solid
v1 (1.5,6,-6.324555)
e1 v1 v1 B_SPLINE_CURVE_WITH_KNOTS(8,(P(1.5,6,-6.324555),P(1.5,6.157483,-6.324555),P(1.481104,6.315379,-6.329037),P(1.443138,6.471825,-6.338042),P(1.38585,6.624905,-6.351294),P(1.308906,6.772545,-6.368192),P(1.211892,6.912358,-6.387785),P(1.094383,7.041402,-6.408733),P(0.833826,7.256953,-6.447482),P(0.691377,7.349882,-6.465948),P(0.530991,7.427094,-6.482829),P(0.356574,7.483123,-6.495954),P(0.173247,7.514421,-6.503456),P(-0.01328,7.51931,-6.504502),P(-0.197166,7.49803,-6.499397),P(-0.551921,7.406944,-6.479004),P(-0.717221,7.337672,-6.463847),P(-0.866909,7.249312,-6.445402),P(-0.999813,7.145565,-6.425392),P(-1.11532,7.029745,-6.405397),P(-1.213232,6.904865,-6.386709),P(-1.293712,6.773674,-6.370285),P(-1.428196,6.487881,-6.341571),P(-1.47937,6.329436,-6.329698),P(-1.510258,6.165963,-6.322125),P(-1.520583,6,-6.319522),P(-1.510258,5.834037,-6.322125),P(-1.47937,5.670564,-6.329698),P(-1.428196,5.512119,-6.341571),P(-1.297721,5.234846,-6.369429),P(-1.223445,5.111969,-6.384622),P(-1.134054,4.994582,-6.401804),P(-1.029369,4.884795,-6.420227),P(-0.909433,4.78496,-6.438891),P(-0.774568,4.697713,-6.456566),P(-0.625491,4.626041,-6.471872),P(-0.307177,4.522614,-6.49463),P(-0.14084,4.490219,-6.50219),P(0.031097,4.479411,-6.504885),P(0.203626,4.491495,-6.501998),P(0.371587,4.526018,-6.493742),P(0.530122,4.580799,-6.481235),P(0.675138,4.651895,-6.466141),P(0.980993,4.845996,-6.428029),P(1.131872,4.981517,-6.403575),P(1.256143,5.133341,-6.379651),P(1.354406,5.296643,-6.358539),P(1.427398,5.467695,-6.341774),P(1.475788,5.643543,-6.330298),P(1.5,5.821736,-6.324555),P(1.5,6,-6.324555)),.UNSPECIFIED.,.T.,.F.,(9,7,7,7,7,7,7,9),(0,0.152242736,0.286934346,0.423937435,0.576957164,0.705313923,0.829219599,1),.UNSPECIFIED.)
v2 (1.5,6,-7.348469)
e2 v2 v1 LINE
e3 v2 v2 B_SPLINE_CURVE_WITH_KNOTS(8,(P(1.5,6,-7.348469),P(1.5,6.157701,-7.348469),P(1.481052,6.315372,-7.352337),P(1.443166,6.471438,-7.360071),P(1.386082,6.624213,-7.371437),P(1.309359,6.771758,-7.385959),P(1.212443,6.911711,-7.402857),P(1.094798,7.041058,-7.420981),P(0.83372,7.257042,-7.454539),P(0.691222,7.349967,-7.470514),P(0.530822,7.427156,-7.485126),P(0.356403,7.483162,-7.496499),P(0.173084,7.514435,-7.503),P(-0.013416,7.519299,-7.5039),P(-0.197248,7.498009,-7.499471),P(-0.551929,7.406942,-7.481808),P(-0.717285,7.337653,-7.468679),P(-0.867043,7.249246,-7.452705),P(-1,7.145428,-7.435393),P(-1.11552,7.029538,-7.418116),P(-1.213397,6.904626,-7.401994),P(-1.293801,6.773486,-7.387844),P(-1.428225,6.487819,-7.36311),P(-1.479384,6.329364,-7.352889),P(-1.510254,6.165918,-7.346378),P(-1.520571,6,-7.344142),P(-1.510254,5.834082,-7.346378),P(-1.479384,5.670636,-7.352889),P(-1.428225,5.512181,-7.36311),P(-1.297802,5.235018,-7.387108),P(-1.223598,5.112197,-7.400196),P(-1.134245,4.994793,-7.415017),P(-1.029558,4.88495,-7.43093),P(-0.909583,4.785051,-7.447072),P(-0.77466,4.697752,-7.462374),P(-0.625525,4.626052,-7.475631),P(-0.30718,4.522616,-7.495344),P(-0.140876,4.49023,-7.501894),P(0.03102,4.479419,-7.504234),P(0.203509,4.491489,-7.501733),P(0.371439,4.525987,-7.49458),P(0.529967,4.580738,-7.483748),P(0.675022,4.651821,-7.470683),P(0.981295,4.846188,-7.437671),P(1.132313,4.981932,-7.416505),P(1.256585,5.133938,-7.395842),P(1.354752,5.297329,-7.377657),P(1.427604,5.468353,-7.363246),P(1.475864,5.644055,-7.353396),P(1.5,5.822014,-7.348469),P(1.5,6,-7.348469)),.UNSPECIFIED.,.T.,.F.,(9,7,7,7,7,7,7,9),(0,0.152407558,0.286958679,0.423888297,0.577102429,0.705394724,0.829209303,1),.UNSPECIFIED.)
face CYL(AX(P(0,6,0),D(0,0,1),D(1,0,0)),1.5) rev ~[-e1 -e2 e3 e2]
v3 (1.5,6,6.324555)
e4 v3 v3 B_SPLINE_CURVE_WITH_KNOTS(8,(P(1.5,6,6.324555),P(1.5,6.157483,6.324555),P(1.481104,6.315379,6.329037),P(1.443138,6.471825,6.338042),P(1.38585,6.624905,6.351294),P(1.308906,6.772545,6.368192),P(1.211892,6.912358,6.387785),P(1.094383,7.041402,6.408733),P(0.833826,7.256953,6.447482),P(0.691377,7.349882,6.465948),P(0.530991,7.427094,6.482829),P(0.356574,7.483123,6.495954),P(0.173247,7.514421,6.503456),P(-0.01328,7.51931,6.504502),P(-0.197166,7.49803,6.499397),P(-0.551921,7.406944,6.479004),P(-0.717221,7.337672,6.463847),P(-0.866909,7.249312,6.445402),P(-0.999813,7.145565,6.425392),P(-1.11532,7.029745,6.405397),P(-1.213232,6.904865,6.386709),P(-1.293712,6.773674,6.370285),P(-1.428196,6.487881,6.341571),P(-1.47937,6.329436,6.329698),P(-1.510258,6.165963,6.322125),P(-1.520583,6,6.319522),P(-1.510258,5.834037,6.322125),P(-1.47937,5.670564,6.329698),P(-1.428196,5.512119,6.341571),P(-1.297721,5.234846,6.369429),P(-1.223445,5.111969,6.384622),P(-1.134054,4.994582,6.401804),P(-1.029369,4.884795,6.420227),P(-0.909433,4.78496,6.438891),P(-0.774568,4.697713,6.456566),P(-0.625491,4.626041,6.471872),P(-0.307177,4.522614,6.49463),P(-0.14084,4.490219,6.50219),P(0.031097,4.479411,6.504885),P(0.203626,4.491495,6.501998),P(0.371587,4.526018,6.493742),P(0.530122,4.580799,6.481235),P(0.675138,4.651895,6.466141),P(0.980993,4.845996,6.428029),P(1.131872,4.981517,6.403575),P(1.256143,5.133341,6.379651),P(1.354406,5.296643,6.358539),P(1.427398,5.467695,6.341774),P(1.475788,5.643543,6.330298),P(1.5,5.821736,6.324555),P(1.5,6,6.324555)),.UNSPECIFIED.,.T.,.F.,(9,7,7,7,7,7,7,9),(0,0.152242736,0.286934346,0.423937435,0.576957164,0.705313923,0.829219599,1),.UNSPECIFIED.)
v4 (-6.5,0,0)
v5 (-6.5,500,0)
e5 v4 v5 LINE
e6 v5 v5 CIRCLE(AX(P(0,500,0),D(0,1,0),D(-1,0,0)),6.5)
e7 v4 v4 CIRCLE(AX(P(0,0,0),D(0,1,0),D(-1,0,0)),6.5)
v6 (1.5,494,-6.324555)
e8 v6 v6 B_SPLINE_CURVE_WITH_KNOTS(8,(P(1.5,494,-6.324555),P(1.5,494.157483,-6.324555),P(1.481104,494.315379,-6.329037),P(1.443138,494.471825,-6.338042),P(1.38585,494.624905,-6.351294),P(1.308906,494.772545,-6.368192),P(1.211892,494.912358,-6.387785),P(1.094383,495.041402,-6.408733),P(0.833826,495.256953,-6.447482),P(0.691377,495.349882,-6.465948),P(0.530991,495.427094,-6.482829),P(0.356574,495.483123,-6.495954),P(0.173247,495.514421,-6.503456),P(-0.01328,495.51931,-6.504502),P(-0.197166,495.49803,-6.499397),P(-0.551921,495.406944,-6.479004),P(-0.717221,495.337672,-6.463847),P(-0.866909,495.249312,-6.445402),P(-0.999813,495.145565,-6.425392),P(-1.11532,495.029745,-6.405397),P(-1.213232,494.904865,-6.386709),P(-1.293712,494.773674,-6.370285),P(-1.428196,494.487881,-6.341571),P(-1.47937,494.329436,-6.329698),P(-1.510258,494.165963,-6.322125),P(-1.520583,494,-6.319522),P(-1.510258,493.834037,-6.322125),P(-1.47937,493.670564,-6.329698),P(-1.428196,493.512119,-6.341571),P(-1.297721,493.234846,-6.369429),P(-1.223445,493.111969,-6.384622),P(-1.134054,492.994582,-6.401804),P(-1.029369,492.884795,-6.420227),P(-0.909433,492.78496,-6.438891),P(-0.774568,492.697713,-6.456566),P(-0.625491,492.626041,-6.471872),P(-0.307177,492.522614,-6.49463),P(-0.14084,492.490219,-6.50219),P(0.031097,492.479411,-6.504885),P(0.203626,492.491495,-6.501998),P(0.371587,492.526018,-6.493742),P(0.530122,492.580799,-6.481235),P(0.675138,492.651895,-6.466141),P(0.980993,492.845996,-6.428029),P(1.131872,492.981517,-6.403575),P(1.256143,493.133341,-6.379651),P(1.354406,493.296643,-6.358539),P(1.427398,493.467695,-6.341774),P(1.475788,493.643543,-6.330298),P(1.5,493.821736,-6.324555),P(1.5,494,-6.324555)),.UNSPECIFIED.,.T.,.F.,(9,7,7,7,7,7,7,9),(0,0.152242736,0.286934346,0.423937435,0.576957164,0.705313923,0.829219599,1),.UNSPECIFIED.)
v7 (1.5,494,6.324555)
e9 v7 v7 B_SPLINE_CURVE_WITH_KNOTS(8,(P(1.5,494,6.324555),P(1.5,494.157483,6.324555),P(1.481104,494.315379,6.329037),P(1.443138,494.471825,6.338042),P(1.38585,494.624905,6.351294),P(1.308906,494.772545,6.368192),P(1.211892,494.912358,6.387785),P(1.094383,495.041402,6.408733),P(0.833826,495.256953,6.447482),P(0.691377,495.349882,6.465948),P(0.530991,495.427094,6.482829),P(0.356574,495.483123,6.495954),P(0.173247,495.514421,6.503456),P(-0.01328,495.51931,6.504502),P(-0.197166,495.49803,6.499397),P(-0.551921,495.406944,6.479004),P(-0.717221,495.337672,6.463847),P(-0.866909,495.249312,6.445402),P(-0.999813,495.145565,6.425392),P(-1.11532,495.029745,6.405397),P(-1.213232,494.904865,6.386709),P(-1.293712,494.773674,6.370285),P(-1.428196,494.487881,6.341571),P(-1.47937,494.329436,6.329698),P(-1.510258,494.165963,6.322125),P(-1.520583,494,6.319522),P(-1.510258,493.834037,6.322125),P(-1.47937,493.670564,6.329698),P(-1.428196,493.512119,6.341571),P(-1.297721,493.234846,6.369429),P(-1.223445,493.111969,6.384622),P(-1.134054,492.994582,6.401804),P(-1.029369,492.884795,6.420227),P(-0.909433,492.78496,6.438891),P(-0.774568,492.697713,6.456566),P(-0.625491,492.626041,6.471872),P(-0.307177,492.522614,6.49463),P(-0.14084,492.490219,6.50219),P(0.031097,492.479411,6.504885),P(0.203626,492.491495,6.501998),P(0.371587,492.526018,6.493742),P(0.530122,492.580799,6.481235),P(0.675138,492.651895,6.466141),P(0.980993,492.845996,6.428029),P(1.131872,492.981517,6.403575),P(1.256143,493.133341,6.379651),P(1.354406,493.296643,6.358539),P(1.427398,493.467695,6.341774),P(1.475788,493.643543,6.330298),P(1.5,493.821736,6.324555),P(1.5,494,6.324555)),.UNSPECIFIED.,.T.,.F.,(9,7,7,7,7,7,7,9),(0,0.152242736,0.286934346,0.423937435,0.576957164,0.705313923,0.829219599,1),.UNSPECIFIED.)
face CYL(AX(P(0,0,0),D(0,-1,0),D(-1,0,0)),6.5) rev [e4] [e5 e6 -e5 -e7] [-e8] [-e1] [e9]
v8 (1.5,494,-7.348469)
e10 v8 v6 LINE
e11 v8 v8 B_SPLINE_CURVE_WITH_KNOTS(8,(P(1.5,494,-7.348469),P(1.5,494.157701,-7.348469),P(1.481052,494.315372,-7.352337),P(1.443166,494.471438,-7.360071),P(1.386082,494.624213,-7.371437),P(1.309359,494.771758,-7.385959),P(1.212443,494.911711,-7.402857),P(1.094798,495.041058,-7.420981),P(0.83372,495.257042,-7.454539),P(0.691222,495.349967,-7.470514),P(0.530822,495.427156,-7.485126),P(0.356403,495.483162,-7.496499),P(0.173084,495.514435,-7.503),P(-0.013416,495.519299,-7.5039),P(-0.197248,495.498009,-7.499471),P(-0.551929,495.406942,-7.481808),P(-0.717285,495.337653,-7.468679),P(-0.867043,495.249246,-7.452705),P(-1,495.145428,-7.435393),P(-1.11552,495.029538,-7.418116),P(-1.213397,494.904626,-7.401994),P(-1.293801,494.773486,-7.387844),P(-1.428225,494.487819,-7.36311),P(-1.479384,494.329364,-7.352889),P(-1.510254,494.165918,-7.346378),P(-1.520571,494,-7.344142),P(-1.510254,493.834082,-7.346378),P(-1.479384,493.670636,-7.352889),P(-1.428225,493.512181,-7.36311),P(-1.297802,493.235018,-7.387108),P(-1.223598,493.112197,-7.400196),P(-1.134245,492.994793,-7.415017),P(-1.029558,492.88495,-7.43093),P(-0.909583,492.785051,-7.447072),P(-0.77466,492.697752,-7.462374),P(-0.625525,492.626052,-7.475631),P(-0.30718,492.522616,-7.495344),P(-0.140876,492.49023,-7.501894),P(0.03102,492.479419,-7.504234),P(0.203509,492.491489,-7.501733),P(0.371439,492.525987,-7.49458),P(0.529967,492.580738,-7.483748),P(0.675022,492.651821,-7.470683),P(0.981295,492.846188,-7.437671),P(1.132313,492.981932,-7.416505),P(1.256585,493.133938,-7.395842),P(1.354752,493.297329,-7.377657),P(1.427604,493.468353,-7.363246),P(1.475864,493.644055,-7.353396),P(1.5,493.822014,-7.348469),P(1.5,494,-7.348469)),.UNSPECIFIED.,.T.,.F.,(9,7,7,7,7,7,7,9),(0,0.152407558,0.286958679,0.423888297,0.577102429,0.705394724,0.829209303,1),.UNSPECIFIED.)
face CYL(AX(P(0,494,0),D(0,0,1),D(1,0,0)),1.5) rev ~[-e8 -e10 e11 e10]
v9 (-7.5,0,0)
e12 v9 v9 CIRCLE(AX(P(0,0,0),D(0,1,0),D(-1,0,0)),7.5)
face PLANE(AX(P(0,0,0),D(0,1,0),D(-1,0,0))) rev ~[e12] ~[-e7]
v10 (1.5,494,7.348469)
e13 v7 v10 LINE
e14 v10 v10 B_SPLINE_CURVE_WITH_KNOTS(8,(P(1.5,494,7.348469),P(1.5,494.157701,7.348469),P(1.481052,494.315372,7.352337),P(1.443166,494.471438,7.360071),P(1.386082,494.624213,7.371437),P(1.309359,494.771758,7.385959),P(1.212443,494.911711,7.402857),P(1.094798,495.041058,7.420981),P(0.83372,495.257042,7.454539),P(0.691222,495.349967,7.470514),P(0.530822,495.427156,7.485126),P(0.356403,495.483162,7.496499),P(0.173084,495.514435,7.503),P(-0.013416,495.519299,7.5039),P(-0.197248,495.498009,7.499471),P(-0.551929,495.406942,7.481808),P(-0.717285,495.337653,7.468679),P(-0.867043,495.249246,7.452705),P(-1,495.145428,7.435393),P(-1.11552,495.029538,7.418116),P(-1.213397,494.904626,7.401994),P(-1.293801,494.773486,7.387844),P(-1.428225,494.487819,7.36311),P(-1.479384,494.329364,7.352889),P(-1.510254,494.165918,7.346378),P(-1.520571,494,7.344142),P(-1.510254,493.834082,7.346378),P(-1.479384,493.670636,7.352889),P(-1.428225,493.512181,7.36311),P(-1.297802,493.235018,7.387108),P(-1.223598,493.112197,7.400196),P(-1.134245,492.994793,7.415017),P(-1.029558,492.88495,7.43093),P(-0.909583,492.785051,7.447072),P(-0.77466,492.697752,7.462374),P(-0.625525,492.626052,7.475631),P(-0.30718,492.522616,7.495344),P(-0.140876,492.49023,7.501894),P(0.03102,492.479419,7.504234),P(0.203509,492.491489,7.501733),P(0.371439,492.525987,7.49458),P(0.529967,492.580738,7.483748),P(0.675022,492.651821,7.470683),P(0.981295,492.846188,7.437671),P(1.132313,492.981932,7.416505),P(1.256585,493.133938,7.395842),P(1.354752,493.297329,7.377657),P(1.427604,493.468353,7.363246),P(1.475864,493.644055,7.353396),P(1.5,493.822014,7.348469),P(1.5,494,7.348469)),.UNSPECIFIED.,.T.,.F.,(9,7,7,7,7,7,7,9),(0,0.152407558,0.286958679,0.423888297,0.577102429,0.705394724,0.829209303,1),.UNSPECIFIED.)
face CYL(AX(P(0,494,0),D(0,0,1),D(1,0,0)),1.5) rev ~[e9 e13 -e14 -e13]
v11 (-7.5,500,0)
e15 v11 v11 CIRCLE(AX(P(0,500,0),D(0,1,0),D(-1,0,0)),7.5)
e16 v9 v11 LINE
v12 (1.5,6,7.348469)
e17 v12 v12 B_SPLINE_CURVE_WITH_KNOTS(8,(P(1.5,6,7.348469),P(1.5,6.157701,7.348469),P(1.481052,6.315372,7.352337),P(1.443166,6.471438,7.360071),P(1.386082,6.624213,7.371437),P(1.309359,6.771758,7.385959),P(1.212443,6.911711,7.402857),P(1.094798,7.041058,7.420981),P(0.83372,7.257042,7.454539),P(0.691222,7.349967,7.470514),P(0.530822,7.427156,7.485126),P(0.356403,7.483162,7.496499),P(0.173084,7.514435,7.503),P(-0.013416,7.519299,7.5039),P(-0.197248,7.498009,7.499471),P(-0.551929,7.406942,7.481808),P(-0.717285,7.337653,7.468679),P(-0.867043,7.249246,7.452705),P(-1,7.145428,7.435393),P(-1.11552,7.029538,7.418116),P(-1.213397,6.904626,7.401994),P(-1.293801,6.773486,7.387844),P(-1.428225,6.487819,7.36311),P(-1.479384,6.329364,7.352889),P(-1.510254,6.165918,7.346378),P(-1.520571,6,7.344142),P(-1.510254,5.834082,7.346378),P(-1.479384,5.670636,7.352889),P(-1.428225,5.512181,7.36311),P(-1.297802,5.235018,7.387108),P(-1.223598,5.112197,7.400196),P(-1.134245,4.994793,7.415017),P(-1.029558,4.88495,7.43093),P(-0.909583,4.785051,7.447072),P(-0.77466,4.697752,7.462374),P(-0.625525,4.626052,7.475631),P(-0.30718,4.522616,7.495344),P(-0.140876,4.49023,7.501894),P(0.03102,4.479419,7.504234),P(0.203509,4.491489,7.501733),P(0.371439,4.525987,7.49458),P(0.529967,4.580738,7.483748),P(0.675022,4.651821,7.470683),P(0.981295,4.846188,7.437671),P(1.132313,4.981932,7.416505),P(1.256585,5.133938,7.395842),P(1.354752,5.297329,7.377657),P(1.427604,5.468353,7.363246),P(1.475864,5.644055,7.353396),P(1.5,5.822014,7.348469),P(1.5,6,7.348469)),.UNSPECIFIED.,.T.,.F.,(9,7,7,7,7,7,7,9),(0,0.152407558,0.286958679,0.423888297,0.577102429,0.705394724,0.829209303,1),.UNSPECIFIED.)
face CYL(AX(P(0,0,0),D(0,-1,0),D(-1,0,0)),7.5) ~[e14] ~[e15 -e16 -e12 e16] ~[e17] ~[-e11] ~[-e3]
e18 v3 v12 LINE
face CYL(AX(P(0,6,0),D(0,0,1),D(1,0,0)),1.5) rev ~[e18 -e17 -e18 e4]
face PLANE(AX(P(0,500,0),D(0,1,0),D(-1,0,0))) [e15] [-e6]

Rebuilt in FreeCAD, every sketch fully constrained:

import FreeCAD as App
import Part
import Sketcher

V = App.Vector
Q = App.Units.Quantity

doc = App.newDocument("Part")
body = doc.addObject("PartDesign::Body", "Body")

sketch1 = body.newObject("Sketcher::SketchObject", "Sketch")
sketch1.AttachmentSupport = (doc.getObject("XZ_Plane"), [""])
sketch1.MapMode = "FlatFace"
sketch1.addGeometry(Part.Circle(V(0, 0, 0), V(0, 0, 1), 8), False)
sketch1.addGeometry(Part.Circle(V(0, 0, 0), V(0, 0, 1), 6), False)
sketch1.addConstraint(Sketcher.Constraint("Coincident", 0, 3, -1, 1))
sketch1.addConstraint(Sketcher.Constraint("Coincident", 1, 3, -1, 1))
sketch1.addConstraint(Sketcher.Constraint("Diameter", 0, Q("15 mm")))
sketch1.addConstraint(Sketcher.Constraint("Diameter", 1, Q("13 mm")))
pad1 = body.newObject("PartDesign::Pad", "Pad")
pad1.Profile = sketch1
pad1.Length = 500
pad1.Reversed = True

sketch2 = body.newObject("Sketcher::SketchObject", "Sketch001")
sketch2.AttachmentSupport = (doc.getObject("XY_Plane"), [""])
sketch2.MapMode = "FlatFace"
sketch2.addGeometry(Part.Circle(V(0, 6, 0), V(0, 0, 1), 1.5), False)
sketch2.addGeometry(Part.Circle(V(0, 494, 0), V(0, 0, 1), 1.5), False)
sketch2.addConstraint(Sketcher.Constraint("Equal", 0, 1))
sketch2.addConstraint(Sketcher.Constraint("PointOnObject", 0, 3, -2))
sketch2.addConstraint(Sketcher.Constraint("PointOnObject", 1, 3, -2))
sketch2.addConstraint(Sketcher.Constraint("Diameter", 0, Q("3 mm")))
sketch2.addConstraint(Sketcher.Constraint("DistanceY", -1, 1, 0, 3, Q("6 mm")))
sketch2.addConstraint(Sketcher.Constraint("DistanceY", -1, 1, 1, 3, Q("494 mm")))
pocket1 = body.newObject("PartDesign::Pocket", "Pocket")
pocket1.Profile = sketch2
pocket1.Type = "ThroughAll"
pocket1.Midplane = True

doc.recompute()
